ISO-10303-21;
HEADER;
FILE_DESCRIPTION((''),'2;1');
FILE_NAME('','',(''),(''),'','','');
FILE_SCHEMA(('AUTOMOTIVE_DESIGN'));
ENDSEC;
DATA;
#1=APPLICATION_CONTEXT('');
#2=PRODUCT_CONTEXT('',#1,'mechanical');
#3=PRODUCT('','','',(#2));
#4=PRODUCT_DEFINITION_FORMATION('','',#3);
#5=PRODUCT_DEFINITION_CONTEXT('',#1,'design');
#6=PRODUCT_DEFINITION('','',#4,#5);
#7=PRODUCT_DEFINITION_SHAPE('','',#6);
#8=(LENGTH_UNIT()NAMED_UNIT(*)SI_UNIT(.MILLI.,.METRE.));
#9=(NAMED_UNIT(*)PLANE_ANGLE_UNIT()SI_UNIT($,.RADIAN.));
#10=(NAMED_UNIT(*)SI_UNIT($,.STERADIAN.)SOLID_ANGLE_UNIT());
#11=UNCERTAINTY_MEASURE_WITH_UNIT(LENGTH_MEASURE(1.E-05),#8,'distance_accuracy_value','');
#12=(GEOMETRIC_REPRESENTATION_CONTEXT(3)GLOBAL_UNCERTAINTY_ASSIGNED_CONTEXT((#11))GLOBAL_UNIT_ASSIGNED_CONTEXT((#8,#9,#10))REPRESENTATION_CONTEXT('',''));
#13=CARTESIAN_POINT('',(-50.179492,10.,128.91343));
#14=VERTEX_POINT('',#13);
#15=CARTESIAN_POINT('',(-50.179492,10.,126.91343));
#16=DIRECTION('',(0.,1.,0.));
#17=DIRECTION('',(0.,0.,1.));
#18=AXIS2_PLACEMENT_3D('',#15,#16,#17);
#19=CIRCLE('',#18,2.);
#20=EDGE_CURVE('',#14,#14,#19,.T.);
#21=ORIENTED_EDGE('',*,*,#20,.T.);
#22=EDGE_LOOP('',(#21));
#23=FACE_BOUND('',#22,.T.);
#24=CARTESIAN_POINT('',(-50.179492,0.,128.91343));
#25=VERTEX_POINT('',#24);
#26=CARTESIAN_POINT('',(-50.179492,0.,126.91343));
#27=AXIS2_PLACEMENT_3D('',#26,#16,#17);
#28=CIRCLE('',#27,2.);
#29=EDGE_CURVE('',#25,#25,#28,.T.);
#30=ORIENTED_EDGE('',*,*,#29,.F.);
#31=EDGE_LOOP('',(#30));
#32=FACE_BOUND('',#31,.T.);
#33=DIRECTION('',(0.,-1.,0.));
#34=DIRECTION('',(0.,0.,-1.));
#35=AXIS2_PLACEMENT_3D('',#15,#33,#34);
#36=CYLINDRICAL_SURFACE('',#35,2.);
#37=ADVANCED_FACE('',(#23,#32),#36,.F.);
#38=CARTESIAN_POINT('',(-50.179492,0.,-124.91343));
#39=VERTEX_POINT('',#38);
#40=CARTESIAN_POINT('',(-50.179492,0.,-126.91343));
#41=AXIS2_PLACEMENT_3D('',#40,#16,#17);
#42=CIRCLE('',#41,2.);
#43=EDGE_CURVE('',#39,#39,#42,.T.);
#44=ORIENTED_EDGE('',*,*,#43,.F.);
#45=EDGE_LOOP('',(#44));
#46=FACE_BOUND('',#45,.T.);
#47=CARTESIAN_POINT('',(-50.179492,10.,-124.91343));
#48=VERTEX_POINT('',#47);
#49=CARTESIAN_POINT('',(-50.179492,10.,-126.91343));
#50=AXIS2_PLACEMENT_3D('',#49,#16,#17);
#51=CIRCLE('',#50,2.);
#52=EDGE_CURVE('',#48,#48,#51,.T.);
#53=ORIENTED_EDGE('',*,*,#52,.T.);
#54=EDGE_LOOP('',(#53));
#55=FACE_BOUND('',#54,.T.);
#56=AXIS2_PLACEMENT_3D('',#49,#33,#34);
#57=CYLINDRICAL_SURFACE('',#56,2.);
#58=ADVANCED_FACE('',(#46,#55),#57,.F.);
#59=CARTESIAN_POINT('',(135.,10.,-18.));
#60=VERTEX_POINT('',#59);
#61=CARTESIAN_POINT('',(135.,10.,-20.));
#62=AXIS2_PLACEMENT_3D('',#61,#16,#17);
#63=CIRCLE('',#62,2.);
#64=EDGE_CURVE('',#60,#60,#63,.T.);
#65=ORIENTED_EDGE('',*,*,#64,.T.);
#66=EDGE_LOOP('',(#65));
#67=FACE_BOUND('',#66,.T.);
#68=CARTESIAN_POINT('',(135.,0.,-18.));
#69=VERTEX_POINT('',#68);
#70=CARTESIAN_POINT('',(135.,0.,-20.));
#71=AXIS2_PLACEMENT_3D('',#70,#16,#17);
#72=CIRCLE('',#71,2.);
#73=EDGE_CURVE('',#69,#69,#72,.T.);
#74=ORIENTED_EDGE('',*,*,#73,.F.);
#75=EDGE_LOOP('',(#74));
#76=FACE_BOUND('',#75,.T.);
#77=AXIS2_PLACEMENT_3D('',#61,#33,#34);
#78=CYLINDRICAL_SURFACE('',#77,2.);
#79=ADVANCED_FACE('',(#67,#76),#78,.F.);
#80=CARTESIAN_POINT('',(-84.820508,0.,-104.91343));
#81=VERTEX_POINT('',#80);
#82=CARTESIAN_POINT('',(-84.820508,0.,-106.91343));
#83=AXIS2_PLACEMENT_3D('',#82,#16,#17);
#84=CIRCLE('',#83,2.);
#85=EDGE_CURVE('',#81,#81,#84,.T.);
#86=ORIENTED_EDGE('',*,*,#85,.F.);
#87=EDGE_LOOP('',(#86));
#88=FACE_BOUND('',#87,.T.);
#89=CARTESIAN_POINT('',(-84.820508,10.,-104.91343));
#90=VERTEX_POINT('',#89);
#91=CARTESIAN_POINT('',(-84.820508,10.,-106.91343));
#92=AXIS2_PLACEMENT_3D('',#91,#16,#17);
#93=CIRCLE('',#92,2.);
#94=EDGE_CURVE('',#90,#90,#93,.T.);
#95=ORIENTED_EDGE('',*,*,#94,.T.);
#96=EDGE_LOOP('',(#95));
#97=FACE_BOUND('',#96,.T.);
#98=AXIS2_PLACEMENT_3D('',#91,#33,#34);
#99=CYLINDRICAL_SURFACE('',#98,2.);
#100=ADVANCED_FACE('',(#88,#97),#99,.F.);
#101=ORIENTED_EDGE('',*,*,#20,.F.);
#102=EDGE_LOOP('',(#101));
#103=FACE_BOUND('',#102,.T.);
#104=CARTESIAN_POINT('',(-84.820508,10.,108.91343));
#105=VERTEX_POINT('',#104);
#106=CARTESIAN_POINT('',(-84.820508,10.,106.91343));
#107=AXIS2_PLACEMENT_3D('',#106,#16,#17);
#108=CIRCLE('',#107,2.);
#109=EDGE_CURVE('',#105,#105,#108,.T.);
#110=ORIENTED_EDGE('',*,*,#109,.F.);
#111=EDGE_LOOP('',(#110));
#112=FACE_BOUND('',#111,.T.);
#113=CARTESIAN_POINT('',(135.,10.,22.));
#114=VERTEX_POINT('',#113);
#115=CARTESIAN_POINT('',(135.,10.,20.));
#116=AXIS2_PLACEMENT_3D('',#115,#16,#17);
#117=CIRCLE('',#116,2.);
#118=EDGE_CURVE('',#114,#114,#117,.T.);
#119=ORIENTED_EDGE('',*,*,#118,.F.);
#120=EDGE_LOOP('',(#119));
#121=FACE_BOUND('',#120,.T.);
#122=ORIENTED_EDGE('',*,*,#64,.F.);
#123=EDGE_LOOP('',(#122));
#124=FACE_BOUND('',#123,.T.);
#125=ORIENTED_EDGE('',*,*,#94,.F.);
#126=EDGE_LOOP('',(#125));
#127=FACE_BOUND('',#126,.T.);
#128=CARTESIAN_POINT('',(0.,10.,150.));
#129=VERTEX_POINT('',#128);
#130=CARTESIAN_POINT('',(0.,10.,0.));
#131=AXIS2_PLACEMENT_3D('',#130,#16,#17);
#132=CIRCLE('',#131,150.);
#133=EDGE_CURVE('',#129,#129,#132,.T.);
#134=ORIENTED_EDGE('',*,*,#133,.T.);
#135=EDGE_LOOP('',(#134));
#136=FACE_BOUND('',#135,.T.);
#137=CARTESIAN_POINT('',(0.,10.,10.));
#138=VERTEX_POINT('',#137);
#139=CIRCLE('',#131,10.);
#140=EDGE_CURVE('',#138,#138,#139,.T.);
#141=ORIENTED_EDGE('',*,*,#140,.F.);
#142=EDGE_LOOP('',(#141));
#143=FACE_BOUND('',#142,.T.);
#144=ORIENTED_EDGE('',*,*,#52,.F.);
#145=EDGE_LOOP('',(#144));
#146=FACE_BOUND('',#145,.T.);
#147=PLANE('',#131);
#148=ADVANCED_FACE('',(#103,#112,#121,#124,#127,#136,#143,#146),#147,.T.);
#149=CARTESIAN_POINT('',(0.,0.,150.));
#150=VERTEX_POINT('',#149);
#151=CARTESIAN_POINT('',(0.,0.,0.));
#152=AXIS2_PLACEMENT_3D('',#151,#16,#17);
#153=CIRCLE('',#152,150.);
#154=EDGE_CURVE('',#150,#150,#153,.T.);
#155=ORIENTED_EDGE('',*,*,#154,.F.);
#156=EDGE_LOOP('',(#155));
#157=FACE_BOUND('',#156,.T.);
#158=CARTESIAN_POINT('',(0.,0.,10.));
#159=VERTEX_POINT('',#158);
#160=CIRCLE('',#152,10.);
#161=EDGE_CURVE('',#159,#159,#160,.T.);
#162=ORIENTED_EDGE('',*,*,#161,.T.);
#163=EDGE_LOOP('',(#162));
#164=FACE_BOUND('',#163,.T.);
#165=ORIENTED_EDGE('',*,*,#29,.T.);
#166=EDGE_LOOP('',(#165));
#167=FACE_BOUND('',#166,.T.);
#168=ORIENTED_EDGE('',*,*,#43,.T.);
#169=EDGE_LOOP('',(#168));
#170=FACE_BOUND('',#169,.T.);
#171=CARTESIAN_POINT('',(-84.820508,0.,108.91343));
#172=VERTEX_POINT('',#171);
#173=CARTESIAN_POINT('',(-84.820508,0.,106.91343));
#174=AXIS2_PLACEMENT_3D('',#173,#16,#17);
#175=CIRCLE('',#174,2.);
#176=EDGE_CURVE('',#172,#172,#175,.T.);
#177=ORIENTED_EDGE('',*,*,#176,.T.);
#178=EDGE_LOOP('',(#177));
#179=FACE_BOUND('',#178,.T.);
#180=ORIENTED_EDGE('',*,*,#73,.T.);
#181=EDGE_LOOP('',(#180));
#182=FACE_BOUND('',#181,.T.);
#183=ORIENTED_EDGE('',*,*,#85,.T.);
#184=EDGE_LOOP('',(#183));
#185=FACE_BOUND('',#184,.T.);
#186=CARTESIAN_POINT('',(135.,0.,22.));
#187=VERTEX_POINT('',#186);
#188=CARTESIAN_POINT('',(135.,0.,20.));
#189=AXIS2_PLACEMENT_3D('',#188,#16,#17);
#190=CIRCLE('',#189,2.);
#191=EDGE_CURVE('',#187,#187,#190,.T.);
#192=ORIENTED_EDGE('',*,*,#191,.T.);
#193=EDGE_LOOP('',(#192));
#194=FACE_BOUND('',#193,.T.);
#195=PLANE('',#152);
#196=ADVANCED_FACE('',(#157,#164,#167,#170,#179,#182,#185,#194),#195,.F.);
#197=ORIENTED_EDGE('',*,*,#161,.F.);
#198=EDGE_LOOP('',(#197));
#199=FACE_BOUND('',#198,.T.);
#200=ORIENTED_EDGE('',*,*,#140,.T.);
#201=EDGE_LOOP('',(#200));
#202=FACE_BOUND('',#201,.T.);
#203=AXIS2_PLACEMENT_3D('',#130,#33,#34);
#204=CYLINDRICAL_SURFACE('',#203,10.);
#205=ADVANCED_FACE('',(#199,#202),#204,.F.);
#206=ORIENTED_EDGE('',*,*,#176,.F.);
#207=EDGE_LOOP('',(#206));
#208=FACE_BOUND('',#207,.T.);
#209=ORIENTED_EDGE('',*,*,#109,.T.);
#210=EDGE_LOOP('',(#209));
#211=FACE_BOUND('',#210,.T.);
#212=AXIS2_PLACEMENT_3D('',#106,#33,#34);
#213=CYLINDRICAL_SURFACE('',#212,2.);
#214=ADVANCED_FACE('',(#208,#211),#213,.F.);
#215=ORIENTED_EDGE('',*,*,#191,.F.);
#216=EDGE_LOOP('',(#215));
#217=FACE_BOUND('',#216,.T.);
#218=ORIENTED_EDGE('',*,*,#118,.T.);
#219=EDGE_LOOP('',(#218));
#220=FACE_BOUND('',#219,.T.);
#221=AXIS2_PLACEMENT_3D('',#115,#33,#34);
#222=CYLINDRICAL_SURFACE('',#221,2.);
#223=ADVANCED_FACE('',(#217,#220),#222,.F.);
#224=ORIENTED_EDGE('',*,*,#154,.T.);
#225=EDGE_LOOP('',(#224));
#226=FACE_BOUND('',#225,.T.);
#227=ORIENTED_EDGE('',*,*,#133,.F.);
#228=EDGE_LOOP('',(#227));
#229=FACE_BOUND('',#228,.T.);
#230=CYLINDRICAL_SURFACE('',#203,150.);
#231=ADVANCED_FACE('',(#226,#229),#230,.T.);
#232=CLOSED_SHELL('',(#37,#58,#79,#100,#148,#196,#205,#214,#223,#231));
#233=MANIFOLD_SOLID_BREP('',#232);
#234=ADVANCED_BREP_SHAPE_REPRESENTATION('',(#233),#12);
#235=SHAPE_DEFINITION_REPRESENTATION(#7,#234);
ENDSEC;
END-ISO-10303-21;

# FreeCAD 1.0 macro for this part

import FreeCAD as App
import Part
import Sketcher
from FreeCAD import Vector
Q = App.Units.Quantity

doc = App.newDocument("Part")
body = doc.addObject("PartDesign::Body", "Body")

# Sketch on XZ plane
sketch1 = body.newObject("Sketcher::SketchObject", "Sketch")
sketch1.AttachmentSupport = (doc.getObject("XZ_Plane"), [""])
sketch1.MapMode = "FlatFace"
sketch1.addGeometry([
    Part.Circle(Vector(0, 0, 0), Vector(0, 0, 1), 150),  # 0
    Part.Circle(Vector(-84.820508, 106.91343, 0), Vector(0, 0, 1), 2),  # 1
    Part.Circle(Vector(-50.179492, 126.91343, 0), Vector(0, 0, 1), 2),  # 2
    Part.Circle(Vector(135, 20, 0), Vector(0, 0, 1), 2),  # 3
    Part.Circle(Vector(0, 0, 0), Vector(0, 0, 1), 10),  # 4
    Part.Circle(Vector(-84.820508, -106.91343, 0), Vector(0, 0, 1), 2),  # 5
    Part.Circle(Vector(-50.179492, -126.91343, 0), Vector(0, 0, 1), 2),  # 6
    Part.Circle(Vector(135, -20, 0), Vector(0, 0, 1), 2),  # 7
], False)
sketch1.addConstraint([
    Sketcher.Constraint("Coincident", 0, 3, -1, 1),
    Sketcher.Constraint("Coincident", 4, 3, -1, 1),
    Sketcher.Constraint("Equal", 1, 2),
    Sketcher.Constraint("Equal", 2, 3),
    Sketcher.Constraint("Equal", 3, 5),
    Sketcher.Constraint("Equal", 5, 6),
    Sketcher.Constraint("Equal", 6, 7),
    Sketcher.Constraint("Symmetric", 1, 3, 5, 3, -1),
    Sketcher.Constraint("Symmetric", 2, 3, 6, 3, -1),
    Sketcher.Constraint("Symmetric", 3, 3, 7, 3, -1),
    Sketcher.Constraint("Diameter", 0, Q("300 mm")),
    Sketcher.Constraint("Diameter", 1, Q("4 mm")),
    Sketcher.Constraint("Diameter", 4, Q("20 mm")),
    Sketcher.Constraint("DistanceX", -1, 1, 3, 3, Q("135 mm")),
    Sketcher.Constraint("DistanceY", -1, 1, 3, 3, Q("20 mm")),
    Sketcher.Constraint("DistanceY", 1, 3, 2, 3, Q("20 mm")),
    Sketcher.Constraint("DistanceX", 1, 3, -1, 1, Q("84.820508 mm")),
    Sketcher.Constraint("DistanceY", -1, 1, 1, 3, Q("106.91343 mm")),
    Sketcher.Constraint("DistanceX", 2, 3, -1, 1, Q("50.179492 mm")),
])
pad1 = body.newObject("PartDesign::Pad", "Pad")
pad1.Profile = sketch1
pad1.Length = 10
pad1.Reversed = True

doc.recompute()
